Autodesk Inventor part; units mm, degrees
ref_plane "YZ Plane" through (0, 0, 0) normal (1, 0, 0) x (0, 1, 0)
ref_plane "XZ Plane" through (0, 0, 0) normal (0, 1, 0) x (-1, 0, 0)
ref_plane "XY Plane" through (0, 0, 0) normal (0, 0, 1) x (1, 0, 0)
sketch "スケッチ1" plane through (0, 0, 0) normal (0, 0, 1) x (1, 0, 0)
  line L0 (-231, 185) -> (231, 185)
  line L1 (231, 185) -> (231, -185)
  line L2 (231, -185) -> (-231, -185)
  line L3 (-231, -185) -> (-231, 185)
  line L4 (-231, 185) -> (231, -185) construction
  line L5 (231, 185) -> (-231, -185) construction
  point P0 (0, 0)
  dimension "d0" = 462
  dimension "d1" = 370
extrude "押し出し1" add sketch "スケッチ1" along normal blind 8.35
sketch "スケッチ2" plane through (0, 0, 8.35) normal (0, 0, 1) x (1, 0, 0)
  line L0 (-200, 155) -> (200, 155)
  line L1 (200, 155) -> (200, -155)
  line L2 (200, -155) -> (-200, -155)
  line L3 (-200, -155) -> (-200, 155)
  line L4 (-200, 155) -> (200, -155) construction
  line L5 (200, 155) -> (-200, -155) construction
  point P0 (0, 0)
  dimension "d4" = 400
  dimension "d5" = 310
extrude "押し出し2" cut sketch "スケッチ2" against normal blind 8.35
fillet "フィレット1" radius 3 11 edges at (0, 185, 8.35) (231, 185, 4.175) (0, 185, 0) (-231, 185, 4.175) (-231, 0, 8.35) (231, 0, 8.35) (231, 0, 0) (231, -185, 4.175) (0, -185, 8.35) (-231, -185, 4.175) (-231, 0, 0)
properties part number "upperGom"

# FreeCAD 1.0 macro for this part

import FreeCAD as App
import Part
import Sketcher
Q = App.Units.Quantity


def edges_at(feature, points):
    """Names of the edges that pass closest to the given points."""
    edges = feature.Shape.Edges
    near = lambda p: min(range(len(edges)), key=lambda i: edges[i].distToShape(Part.Vertex(*p))[0])
    return sorted({f"Edge{near(p) + 1}" for p in points})

doc = App.newDocument("Part")
body = doc.addObject("PartDesign::Body", "Body")

sketch1 = body.newObject("Sketcher::SketchObject", "Sketch")
sketch1.AttachmentSupport = (doc.getObject("XY_Plane"), [""])
sketch1.MapMode = "FlatFace"
sketch1.addGeometry([
    Part.LineSegment(App.Vector(231, 185, 0), App.Vector(-231, 185, 0)),
    Part.LineSegment(App.Vector(-231, 185, 0), App.Vector(-231, -185, 0)),
    Part.LineSegment(App.Vector(-231, -185, 0), App.Vector(231, -185, 0)),
    Part.LineSegment(App.Vector(231, -185, 0), App.Vector(231, 185, 0)),
], False)
sketch1.addConstraint([
    Sketcher.Constraint("Coincident", 0, 2, 1, 1),
    Sketcher.Constraint("Coincident", 1, 2, 2, 1),
    Sketcher.Constraint("Coincident", 2, 2, 3, 1),
    Sketcher.Constraint("Coincident", 3, 2, 0, 1),
    Sketcher.Constraint("Horizontal", 0),
    Sketcher.Constraint("Vertical", 1),
    Sketcher.Constraint("Horizontal", 2),
    Sketcher.Constraint("Vertical", 3),
    Sketcher.Constraint("Symmetric", 0, 2, 2, 2, -1, 1),
    Sketcher.Constraint("DistanceX", 0, 2, 0, 1, Q("462 mm")),
    Sketcher.Constraint("DistanceY", 1, 2, 1, 1, Q("370 mm")),
])
pad1 = body.newObject("PartDesign::Pad", "Pad")
pad1.Profile = sketch1
pad1.Length = 8.35

sketch2 = body.newObject("Sketcher::SketchObject", "Sketch001")
sketch2.AttachmentSupport = (doc.getObject("XY_Plane"), [""])
sketch2.MapMode = "FlatFace"
sketch2.AttachmentOffset = App.Placement(App.Vector(0, 0, 8.35), App.Rotation())
sketch2.addGeometry([
    Part.LineSegment(App.Vector(200, 155, 0), App.Vector(-200, 155, 0)),
    Part.LineSegment(App.Vector(-200, 155, 0), App.Vector(-200, -155, 0)),
    Part.LineSegment(App.Vector(-200, -155, 0), App.Vector(200, -155, 0)),
    Part.LineSegment(App.Vector(200, -155, 0), App.Vector(200, 155, 0)),
], False)
sketch2.addConstraint([
    Sketcher.Constraint("Coincident", 0, 2, 1, 1),
    Sketcher.Constraint("Coincident", 1, 2, 2, 1),
    Sketcher.Constraint("Coincident", 2, 2, 3, 1),
    Sketcher.Constraint("Coincident", 3, 2, 0, 1),
    Sketcher.Constraint("Horizontal", 0),
    Sketcher.Constraint("Vertical", 1),
    Sketcher.Constraint("Horizontal", 2),
    Sketcher.Constraint("Vertical", 3),
    Sketcher.Constraint("Symmetric", 0, 2, 2, 2, -1, 1),
    Sketcher.Constraint("DistanceX", 0, 2, 0, 1, Q("400 mm")),
    Sketcher.Constraint("DistanceY", 1, 2, 1, 1, Q("310 mm")),
])
pocket1 = body.newObject("PartDesign::Pocket", "Pocket")
pocket1.Profile = sketch2
pocket1.Length = 8.35
doc.recompute()

fillet = body.newObject("PartDesign::Fillet", "Fillet")
fillet.Base = (pocket1, edges_at(pocket1, [
    (0, 185, 8.35),
    (231, 185, 4.175),
    (0, 185, 0),
    (-231, 185, 4.175),
    (-231, 0, 8.35),
    (231, 0, 8.35),
    (231, 0, 0),
    (231, -185, 4.175),
    (0, -185, 8.35),
    (-231, -185, 4.175),
    (-231, 0, 0),
]))
fillet.Radius = 3

doc.recompute()
